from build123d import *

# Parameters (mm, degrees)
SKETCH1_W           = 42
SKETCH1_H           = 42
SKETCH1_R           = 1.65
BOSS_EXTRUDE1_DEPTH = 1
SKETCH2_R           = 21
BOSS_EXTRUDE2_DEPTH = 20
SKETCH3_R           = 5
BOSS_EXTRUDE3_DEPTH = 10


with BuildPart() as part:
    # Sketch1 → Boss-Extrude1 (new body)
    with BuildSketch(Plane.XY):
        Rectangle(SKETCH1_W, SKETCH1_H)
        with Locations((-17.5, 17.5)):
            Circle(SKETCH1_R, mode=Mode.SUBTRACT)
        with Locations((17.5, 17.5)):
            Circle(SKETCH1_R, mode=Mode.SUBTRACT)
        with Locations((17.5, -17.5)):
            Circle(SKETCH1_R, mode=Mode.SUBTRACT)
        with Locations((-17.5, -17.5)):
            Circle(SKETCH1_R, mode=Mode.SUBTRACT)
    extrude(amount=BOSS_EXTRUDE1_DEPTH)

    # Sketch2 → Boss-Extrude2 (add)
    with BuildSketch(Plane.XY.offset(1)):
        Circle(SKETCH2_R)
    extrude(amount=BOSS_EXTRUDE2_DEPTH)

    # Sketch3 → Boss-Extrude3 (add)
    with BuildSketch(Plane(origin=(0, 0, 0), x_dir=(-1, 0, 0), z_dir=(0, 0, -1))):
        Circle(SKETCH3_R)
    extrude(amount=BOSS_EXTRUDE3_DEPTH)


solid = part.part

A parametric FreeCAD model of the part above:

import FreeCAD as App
import Part
import Sketcher

doc = App.newDocument("Part")
body = doc.addObject("PartDesign::Body", "Body")

sketch1 = body.newObject("Sketcher::SketchObject", "Sketch")
sketch1.AttachmentSupport = (doc.getObject("XY_Plane"), [""])
sketch1.MapMode = "FlatFace"
sketch1.addGeometry(Part.LineSegment(App.Vector(-21, 21, 0), App.Vector(-21, -21, 0)), False)
sketch1.addGeometry(Part.LineSegment(App.Vector(-21, -21, 0), App.Vector(21, -21, 0)), False)
sketch1.addGeometry(Part.LineSegment(App.Vector(21, -21, 0), App.Vector(21, 21, 0)), False)
sketch1.addGeometry(Part.LineSegment(App.Vector(21, 21, 0), App.Vector(-21, 21, 0)), False)
sketch1.addGeometry(Part.Circle(App.Vector(-17.5, -17.5, 0), App.Vector(0, 0, 1), 1.65), False)
sketch1.addGeometry(Part.Circle(App.Vector(17.5, -17.5, 0), App.Vector(0, 0, 1), 1.65), False)
sketch1.addGeometry(Part.Circle(App.Vector(-17.5, 17.5, 0), App.Vector(0, 0, 1), 1.65), False)
sketch1.addGeometry(Part.Circle(App.Vector(17.5, 17.5, 0), App.Vector(0, 0, 1), 1.65), False)
sketch1.addConstraint(Sketcher.Constraint("Coincident", 0, 2, 1, 1))
sketch1.addConstraint(Sketcher.Constraint("Coincident", 1, 2, 2, 1))
sketch1.addConstraint(Sketcher.Constraint("Coincident", 2, 2, 3, 1))
sketch1.addConstraint(Sketcher.Constraint("Coincident", 3, 2, 0, 1))
sketch1.addConstraint(Sketcher.Constraint("Vertical", 0))
sketch1.addConstraint(Sketcher.Constraint("Horizontal", 1))
sketch1.addConstraint(Sketcher.Constraint("Vertical", 2))
sketch1.addConstraint(Sketcher.Constraint("Horizontal", 3))
sketch1.addConstraint(Sketcher.Constraint("Equal", 4, 5))
sketch1.addConstraint(Sketcher.Constraint("Equal", 5, 6))
sketch1.addConstraint(Sketcher.Constraint("Equal", 6, 7))
sketch1.addConstraint(Sketcher.Constraint("Symmetric", 5, 3, 6, 3, -1, 1))
sketch1.addConstraint(Sketcher.Constraint("Symmetric", 4, 3, 7, 3, -1, 1))
sketch1.addConstraint(Sketcher.Constraint("Symmetric", 0, 2, 2, 2, -1, 1))
sketch1.addConstraint(Sketcher.Constraint("Symmetric", 4, 3, 5, 3, -2))
sketch1.addConstraint(Sketcher.Constraint("Equal", 3, 0))
sketch1.addConstraint(Sketcher.Constraint("Diameter", 4, 3.3))
sketch1.addConstraint(Sketcher.Constraint("DistanceX", 1, 1, 1, 2, 42.0))
sketch1.addConstraint(Sketcher.Constraint("DistanceX", 4, 3, 5, 3, 35.0))
sketch1.addConstraint(Sketcher.Constraint("DistanceY", 4, 3, 6, 3, 35.0))
pad1 = body.newObject("PartDesign::Pad", "Pad")
pad1.Profile = sketch1
pad1.Length = 1

sketch2 = body.newObject("Sketcher::SketchObject", "Sketch001")
sketch2.AttachmentSupport = (doc.getObject("XY_Plane"), [""])
sketch2.MapMode = "FlatFace"
sketch2.AttachmentOffset = App.Placement(App.Vector(0, 0, 1), App.Rotation())
sketch2.addGeometry(Part.Circle(App.Vector(0, 0, 0), App.Vector(0, 0, 1), 21), False)
sketch2.addConstraint(Sketcher.Constraint("Coincident", 0, 3, -1, 1))
sketch2.addConstraint(Sketcher.Constraint("Diameter", 0, 42.0))
pad2 = body.newObject("PartDesign::Pad", "Pad001")
pad2.Profile = sketch2
pad2.Length = 20

sketch3 = body.newObject("Sketcher::SketchObject", "Sketch002")
sketch3.AttachmentSupport = (doc.getObject("XY_Plane"), [""])
sketch3.MapMode = "FlatFace"
sketch3.addGeometry(Part.Circle(App.Vector(0, 0, 0), App.Vector(0, 0, 1), 5), False)
sketch3.addConstraint(Sketcher.Constraint("Coincident", 0, 3, -1, 1))
sketch3.addConstraint(Sketcher.Constraint("Diameter", 0, 10.0))
pad3 = body.newObject("PartDesign::Pad", "Pad002")
pad3.Profile = sketch3
pad3.Length = 10
pad3.Reversed = True

doc.recompute()
